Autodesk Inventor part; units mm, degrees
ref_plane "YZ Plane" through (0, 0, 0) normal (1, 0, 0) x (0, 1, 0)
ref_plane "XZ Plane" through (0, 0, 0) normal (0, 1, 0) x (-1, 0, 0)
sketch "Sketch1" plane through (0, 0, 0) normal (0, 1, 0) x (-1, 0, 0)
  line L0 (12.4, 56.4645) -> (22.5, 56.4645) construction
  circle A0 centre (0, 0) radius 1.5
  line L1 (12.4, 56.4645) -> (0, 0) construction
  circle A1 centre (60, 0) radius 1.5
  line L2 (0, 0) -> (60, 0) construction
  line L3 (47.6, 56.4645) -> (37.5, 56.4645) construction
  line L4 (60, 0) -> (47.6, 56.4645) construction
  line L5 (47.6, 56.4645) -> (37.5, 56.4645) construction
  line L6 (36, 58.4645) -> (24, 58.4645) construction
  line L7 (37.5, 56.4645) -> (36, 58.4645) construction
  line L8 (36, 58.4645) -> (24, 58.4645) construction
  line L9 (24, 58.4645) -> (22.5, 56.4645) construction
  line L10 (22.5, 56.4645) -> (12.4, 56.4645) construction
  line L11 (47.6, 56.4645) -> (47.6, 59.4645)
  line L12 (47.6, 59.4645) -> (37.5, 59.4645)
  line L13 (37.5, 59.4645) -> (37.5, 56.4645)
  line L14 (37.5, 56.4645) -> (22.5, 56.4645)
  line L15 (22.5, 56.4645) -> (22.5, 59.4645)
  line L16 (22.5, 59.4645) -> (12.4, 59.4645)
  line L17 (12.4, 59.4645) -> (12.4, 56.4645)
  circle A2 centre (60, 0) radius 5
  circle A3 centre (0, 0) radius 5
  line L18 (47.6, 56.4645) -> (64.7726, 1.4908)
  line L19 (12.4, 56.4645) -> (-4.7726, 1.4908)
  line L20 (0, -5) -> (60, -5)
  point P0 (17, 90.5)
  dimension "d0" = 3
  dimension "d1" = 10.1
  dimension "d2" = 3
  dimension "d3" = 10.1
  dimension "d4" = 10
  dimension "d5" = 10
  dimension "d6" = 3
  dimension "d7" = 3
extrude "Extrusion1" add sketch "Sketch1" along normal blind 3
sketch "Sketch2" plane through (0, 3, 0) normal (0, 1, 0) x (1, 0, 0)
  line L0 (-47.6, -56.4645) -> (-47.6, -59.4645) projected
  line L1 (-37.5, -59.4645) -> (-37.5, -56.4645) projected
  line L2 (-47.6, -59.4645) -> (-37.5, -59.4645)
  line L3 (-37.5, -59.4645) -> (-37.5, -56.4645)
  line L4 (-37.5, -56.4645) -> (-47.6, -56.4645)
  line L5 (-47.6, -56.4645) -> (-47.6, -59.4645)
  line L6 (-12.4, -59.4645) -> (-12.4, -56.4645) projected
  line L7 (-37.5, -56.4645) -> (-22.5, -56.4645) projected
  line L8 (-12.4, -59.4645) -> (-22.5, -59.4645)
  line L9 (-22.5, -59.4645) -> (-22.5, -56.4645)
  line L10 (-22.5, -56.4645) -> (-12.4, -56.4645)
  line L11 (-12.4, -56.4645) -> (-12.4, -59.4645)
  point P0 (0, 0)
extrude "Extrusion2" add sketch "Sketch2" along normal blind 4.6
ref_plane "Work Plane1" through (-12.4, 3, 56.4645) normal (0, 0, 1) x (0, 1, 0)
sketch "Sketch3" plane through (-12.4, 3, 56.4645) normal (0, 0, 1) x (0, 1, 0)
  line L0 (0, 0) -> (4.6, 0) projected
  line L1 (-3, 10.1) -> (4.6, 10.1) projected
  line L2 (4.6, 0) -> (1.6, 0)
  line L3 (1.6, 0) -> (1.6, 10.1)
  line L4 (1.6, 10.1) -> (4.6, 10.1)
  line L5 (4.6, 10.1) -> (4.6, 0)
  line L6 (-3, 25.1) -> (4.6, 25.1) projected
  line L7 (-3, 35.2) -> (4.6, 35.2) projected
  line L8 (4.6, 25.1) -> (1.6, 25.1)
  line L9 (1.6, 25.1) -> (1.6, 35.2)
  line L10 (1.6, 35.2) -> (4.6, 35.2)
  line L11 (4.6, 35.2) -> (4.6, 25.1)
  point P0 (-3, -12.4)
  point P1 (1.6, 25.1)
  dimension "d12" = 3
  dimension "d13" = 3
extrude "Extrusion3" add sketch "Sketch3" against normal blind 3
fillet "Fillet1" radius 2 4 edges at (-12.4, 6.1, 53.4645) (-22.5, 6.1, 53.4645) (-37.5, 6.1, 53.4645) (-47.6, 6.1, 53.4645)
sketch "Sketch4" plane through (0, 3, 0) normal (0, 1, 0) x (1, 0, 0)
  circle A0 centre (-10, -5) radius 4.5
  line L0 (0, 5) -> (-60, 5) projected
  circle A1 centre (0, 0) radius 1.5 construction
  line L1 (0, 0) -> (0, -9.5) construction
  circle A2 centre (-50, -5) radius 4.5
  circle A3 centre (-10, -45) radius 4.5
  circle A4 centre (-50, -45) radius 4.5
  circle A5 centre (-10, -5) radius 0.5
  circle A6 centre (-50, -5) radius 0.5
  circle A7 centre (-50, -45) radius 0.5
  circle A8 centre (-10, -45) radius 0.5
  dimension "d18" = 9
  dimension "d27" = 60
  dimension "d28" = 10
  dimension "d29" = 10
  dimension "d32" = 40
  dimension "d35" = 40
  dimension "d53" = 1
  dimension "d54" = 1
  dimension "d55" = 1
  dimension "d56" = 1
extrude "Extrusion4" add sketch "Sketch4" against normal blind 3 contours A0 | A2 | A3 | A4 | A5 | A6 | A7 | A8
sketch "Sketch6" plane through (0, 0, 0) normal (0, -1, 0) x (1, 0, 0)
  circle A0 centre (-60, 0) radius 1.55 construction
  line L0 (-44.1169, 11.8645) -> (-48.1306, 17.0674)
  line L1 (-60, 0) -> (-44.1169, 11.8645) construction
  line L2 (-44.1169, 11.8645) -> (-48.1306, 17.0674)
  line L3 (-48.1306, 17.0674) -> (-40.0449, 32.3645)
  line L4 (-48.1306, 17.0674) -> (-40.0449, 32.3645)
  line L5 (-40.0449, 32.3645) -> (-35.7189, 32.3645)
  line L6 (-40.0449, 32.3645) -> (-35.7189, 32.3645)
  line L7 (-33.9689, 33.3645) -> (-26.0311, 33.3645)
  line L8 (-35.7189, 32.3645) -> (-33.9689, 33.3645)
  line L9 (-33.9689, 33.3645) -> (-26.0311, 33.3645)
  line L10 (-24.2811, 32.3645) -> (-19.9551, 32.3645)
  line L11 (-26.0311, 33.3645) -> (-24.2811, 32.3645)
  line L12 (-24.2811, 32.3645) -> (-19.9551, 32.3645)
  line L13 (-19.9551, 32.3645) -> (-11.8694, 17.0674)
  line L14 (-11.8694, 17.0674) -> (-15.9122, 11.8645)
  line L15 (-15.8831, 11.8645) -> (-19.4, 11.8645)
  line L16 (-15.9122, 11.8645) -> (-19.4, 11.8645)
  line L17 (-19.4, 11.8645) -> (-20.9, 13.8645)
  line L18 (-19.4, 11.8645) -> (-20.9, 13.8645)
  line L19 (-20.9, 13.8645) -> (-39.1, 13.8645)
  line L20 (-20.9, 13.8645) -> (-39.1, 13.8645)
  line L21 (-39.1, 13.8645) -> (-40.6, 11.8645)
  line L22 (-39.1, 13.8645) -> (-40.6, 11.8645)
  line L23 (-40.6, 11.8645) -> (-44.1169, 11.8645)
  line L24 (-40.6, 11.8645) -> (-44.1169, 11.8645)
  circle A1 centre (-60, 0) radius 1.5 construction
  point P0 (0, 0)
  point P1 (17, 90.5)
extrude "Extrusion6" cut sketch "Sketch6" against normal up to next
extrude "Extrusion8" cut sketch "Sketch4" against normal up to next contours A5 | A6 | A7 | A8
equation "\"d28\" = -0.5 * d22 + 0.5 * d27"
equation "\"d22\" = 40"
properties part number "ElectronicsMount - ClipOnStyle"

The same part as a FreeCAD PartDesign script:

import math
import FreeCAD as App
import Part
import Sketcher

V = App.Vector
Q = App.Units.Quantity


def edges_at(feature, points):
    """Names of the edges that pass closest to the given points."""
    edges = feature.Shape.Edges
    near = lambda p: min(range(len(edges)), key=lambda i: edges[i].distToShape(Part.Vertex(*p))[0])
    return sorted({f"Edge{near(p) + 1}" for p in points})

doc = App.newDocument("Part")
body = doc.addObject("PartDesign::Body", "Body")

# Sketch on XZ plane
sketch1 = body.newObject("Sketcher::SketchObject", "Sketch")
sketch1.AttachmentSupport = (doc.getObject("XZ_Plane"), [""])
sketch1.MapMode = "FlatFace"
sketch1.addGeometry([
    Part.LineSegment(V(-64.8, 1.5, 0), V(-47.6, 56.5, 0)),  # 0
    Part.LineSegment(V(-47.6, 56.5, 0), V(-47.6, 59.5, 0)),  # 1
    Part.LineSegment(V(-47.6, 59.5, 0), V(-37.5, 59.5, 0)),  # 2
    Part.LineSegment(V(-37.5, 59.5, 0), V(-37.5, 56.5, 0)),  # 3
    Part.LineSegment(V(-37.5, 56.5, 0), V(-22.5, 56.5, 0)),  # 4
    Part.LineSegment(V(-22.5, 56.5, 0), V(-22.5, 59.5, 0)),  # 5
    Part.LineSegment(V(-22.5, 59.5, 0), V(-12.4, 59.5, 0)),  # 6
    Part.LineSegment(V(-12.4, 59.5, 0), V(-12.4, 56.5, 0)),  # 7
    Part.LineSegment(V(-12.4, 56.5, 0), V(4.8, 1.5, 0)),  # 8
    Part.ArcOfCircle(Part.Circle(V(0, 0, 0), V(0, 0, 1), 5), math.radians(-90), math.radians(17)),  # 9
    Part.LineSegment(V(0, -5, 0), V(-60, -5, 0)),  # 10
    Part.ArcOfCircle(Part.Circle(V(-60, 0, 0), V(0, 0, 1), 5), math.radians(163), math.radians(270)),  # 11
    Part.Circle(V(-60, 0, 0), V(0, 0, 1), 1.5),  # 12
    Part.Circle(V(0, 0, 0), V(0, 0, 1), 1.5),  # 13
], False)
sketch1.addConstraint([
    Sketcher.Constraint("Coincident", 0, 2, 1, 1),
    Sketcher.Constraint("Coincident", 1, 2, 2, 1),
    Sketcher.Constraint("Coincident", 2, 2, 3, 1),
    Sketcher.Constraint("Coincident", 3, 2, 4, 1),
    Sketcher.Constraint("Coincident", 4, 2, 5, 1),
    Sketcher.Constraint("Coincident", 5, 2, 6, 1),
    Sketcher.Constraint("Coincident", 6, 2, 7, 1),
    Sketcher.Constraint("Coincident", 7, 2, 8, 1),
    Sketcher.Constraint("Tangent", 8, 2, 9, 2),
    Sketcher.Constraint("Tangent", 9, 1, 10, 1),
    Sketcher.Constraint("Tangent", 10, 2, 11, 2),
    Sketcher.Constraint("Tangent", 11, 1, 0, 1),
    Sketcher.Constraint("Vertical", 1),
    Sketcher.Constraint("Horizontal", 2),
    Sketcher.Constraint("Vertical", 3),
    Sketcher.Constraint("Horizontal", 4),
    Sketcher.Constraint("Vertical", 5),
    Sketcher.Constraint("Horizontal", 6),
    Sketcher.Constraint("Vertical", 7),
    Sketcher.Constraint("Horizontal", 10),
    Sketcher.Constraint("Coincident", 9, 3, -1, 1),
    Sketcher.Constraint("Coincident", 13, 3, -1, 1),
    Sketcher.Constraint("Coincident", 12, 3, 11, 3),
    Sketcher.Constraint("Equal", 9, 11),
    Sketcher.Constraint("Equal", 12, 13),
    Sketcher.Constraint("Horizontal", 0, 2, 3, 2),
    Sketcher.Constraint("Horizontal", 2, 2, 5, 2),
    Sketcher.Constraint("Horizontal", 4, 2, 7, 2),
    Sketcher.Constraint("Horizontal", 8, 2, 11, 1),
    Sketcher.Constraint("Equal", 2, 6),
    Sketcher.Constraint("Diameter", 12, 3.0),
    Sketcher.Constraint("Radius", 9, 5.0),
    Sketcher.Constraint("DistanceY", 1, 1, 1, 2, 3.0),
    Sketcher.Constraint("DistanceX", 2, 1, 2, 2, 10.1),
    Sketcher.Constraint("DistanceX", 4, 1, 4, 2, 15.0),
    Sketcher.Constraint("DistanceX", 10, 2, 10, 1, 60.0),
    Sketcher.Constraint("Distance", 0, 57.5935),
])
pad1 = body.newObject("PartDesign::Pad", "Pad")
pad1.Profile = sketch1
pad1.Length = 3
pad1.Reversed = True

# Sketch on XZ plane
sketch2 = body.newObject("Sketcher::SketchObject", "Sketch001")
sketch2.AttachmentSupport = (doc.getObject("XZ_Plane"), [""])
sketch2.MapMode = "FlatFace"
sketch2.AttachmentOffset = App.Placement(V(0, 0, -3), App.Rotation())
sketch2.addGeometry([
    Part.LineSegment(V(-37.5, 56.5, 0), V(-47.6, 56.5, 0)),  # 0
    Part.LineSegment(V(-47.6, 56.5, 0), V(-47.6, 59.5, 0)),  # 1
    Part.LineSegment(V(-47.6, 59.5, 0), V(-37.5, 59.5, 0)),  # 2
    Part.LineSegment(V(-37.5, 59.5, 0), V(-37.5, 56.5, 0)),  # 3
    Part.LineSegment(V(-12.4, 56.5, 0), V(-22.5, 56.5, 0)),  # 4
    Part.LineSegment(V(-22.5, 56.5, 0), V(-22.5, 59.5, 0)),  # 5
    Part.LineSegment(V(-22.5, 59.5, 0), V(-12.4, 59.5, 0)),  # 6
    Part.LineSegment(V(-12.4, 59.5, 0), V(-12.4, 56.5, 0)),  # 7
], False)
sketch2.addConstraint([
    Sketcher.Constraint("Coincident", 0, 2, 1, 1),
    Sketcher.Constraint("Coincident", 1, 2, 2, 1),
    Sketcher.Constraint("Coincident", 2, 2, 3, 1),
    Sketcher.Constraint("Coincident", 3, 2, 0, 1),
    Sketcher.Constraint("Coincident", 4, 2, 5, 1),
    Sketcher.Constraint("Coincident", 5, 2, 6, 1),
    Sketcher.Constraint("Coincident", 6, 2, 7, 1),
    Sketcher.Constraint("Coincident", 7, 2, 4, 1),
    Sketcher.Constraint("Horizontal", 0),
    Sketcher.Constraint("Vertical", 1),
    Sketcher.Constraint("Horizontal", 2),
    Sketcher.Constraint("Vertical", 3),
    Sketcher.Constraint("Horizontal", 4),
    Sketcher.Constraint("Vertical", 5),
    Sketcher.Constraint("Horizontal", 6),
    Sketcher.Constraint("Vertical", 7),
    Sketcher.Constraint("Horizontal", 3, 2, 4, 2),
    Sketcher.Constraint("Horizontal", 2, 2, 5, 2),
    Sketcher.Constraint("Equal", 2, 4),
    Sketcher.Constraint("DistanceY", 1, 1, 1, 2, 3.0),
    Sketcher.Constraint("DistanceX", 0, 2, 0, 1, 10.1),
    Sketcher.Constraint("DistanceX", 3, 2, 4, 2, 15.0),
    Sketcher.Constraint("DistanceX", 0, 2, -1, 1, 47.6),
    Sketcher.Constraint("DistanceY", -1, 1, 0, 2, 56.4645),
])
pad2 = body.newObject("PartDesign::Pad", "Pad001")
pad2.Profile = sketch2
pad2.Length = 4.6
pad2.Reversed = True

# Sketch on XY plane
sketch3 = body.newObject("Sketcher::SketchObject", "Sketch002")
sketch3.AttachmentSupport = (doc.getObject("XY_Plane"), [""])
sketch3.MapMode = "FlatFace"
sketch3.AttachmentOffset = App.Placement(V(0, 0, 56.4645), App.Rotation())
sketch3.addGeometry([
    Part.LineSegment(V(-22.5, 4.6, 0), V(-12.4, 4.6, 0)),  # 0
    Part.LineSegment(V(-12.4, 4.6, 0), V(-12.4, 7.6, 0)),  # 1
    Part.LineSegment(V(-12.4, 7.6, 0), V(-22.5, 7.6, 0)),  # 2
    Part.LineSegment(V(-22.5, 7.6, 0), V(-22.5, 4.6, 0)),  # 3
    Part.LineSegment(V(-47.6, 4.6, 0), V(-37.5, 4.6, 0)),  # 4
    Part.LineSegment(V(-37.5, 4.6, 0), V(-37.5, 7.6, 0)),  # 5
    Part.LineSegment(V(-37.5, 7.6, 0), V(-47.6, 7.6, 0)),  # 6
    Part.LineSegment(V(-47.6, 7.6, 0), V(-47.6, 4.6, 0)),  # 7
], False)
sketch3.addConstraint([
    Sketcher.Constraint("Coincident", 0, 2, 1, 1),
    Sketcher.Constraint("Coincident", 1, 2, 2, 1),
    Sketcher.Constraint("Coincident", 2, 2, 3, 1),
    Sketcher.Constraint("Coincident", 3, 2, 0, 1),
    Sketcher.Constraint("Coincident", 4, 2, 5, 1),
    Sketcher.Constraint("Coincident", 5, 2, 6, 1),
    Sketcher.Constraint("Coincident", 6, 2, 7, 1),
    Sketcher.Constraint("Coincident", 7, 2, 4, 1),
    Sketcher.Constraint("Horizontal", 0),
    Sketcher.Constraint("Vertical", 1),
    Sketcher.Constraint("Horizontal", 2),
    Sketcher.Constraint("Vertical", 3),
    Sketcher.Constraint("Horizontal", 4),
    Sketcher.Constraint("Vertical", 5),
    Sketcher.Constraint("Horizontal", 6),
    Sketcher.Constraint("Vertical", 7),
    Sketcher.Constraint("Horizontal", 3, 2, 4, 2),
    Sketcher.Constraint("Horizontal", 2, 2, 5, 2),
    Sketcher.Constraint("Equal", 2, 4),
    Sketcher.Constraint("DistanceY", 1, 1, 1, 2, 3.0),
    Sketcher.Constraint("DistanceX", 0, 1, 0, 2, 10.1),
    Sketcher.Constraint("DistanceX", 4, 2, 3, 2, 15.0),
    Sketcher.Constraint("DistanceX", 0, 2, -1, 1, 12.4),
    Sketcher.Constraint("DistanceY", -1, 1, 0, 2, 4.6),
])
pad3 = body.newObject("PartDesign::Pad", "Pad002")
pad3.Profile = sketch3
pad3.Length = 3
pad3.Reversed = True
doc.recompute()

fillet = body.newObject("PartDesign::Fillet", "Fillet")
fillet.Base = (pad3, edges_at(pad3, [
    (-12.4, 6.1, 53.465),
    (-22.5, 6.1, 53.465),
    (-37.5, 6.1, 53.465),
    (-47.6, 6.1, 53.465),
]))
fillet.Radius = 2

# Sketch on XZ plane
sketch4 = body.newObject("Sketcher::SketchObject", "Sketch003")
sketch4.AttachmentSupport = (doc.getObject("XZ_Plane"), [""])
sketch4.MapMode = "FlatFace"
sketch4.AttachmentOffset = App.Placement(V(0, 0, -3), App.Rotation())
sketch4.addGeometry([
    Part.Circle(V(-10, 5, 0), V(0, 0, 1), 4.5),
    Part.Circle(V(-50, 5, 0), V(0, 0, 1), 4.5),
    Part.Circle(V(-10, 45, 0), V(0, 0, 1), 4.5),
    Part.Circle(V(-50, 45, 0), V(0, 0, 1), 4.5),
], False)
sketch4.addConstraint([
    Sketcher.Constraint("Equal", 0, 1),
    Sketcher.Constraint("Equal", 1, 2),
    Sketcher.Constraint("Equal", 2, 3),
    Sketcher.Constraint("Horizontal", 0, 3, 1, 3),
    Sketcher.Constraint("Horizontal", 2, 3, 3, 3),
    Sketcher.Constraint("Vertical", 0, 3, 2, 3),
    Sketcher.Constraint("Vertical", 1, 3, 3, 3),
    Sketcher.Constraint("Diameter", 0, 9.0),
    Sketcher.Constraint("DistanceX", 0, 3, -1, 1, 10.0),
    Sketcher.Constraint("DistanceX", 1, 3, 0, 3, 40.0),
    Sketcher.Constraint("DistanceY", 0, 3, 2, 3, 40.0),
    Sketcher.Constraint("DistanceY", -1, 1, 0, 3, 5.0),
])
pad4 = body.newObject("PartDesign::Pad", "Pad003")
pad4.Profile = sketch4
pad4.Length = 3

# Sketch on XZ plane
sketch5 = body.newObject("Sketcher::SketchObject", "Sketch004")
sketch5.AttachmentSupport = (doc.getObject("XZ_Plane"), [""])
sketch5.MapMode = "FlatFace"
sketch5.addGeometry([
    Part.LineSegment(V(-48.1, 17.1, 0), V(-44.1, 11.9, 0)),  # 0
    Part.LineSegment(V(-44.1, 11.9, 0), V(-40.6, 11.9, 0)),  # 1
    Part.LineSegment(V(-40.6, 11.9, 0), V(-39.1, 13.9, 0)),  # 2
    Part.LineSegment(V(-39.1, 13.9, 0), V(-20.9, 13.9, 0)),  # 3
    Part.LineSegment(V(-20.9, 13.9, 0), V(-19.4, 11.9, 0)),  # 4
    Part.LineSegment(V(-19.4, 11.9, 0), V(-15.9, 11.9, 0)),  # 5
    Part.LineSegment(V(-15.9, 11.9, 0), V(-11.9, 17.1, 0)),  # 6
    Part.LineSegment(V(-11.9, 17.1, 0), V(-20, 32.4, 0)),  # 7
    Part.LineSegment(V(-20, 32.4, 0), V(-24.3, 32.4, 0)),  # 8
    Part.LineSegment(V(-24.3, 32.4, 0), V(-26, 33.4, 0)),  # 9
    Part.LineSegment(V(-26, 33.4, 0), V(-34, 33.4, 0)),  # 10
    Part.LineSegment(V(-34, 33.4, 0), V(-35.7, 32.4, 0)),  # 11
    Part.LineSegment(V(-35.7, 32.4, 0), V(-40, 32.4, 0)),  # 12
    Part.LineSegment(V(-40, 32.4, 0), V(-48.1, 17.1, 0)),  # 13
], False)
sketch5.addConstraint([
    Sketcher.Constraint("Coincident", 0, 2, 1, 1),
    Sketcher.Constraint("Coincident", 1, 2, 2, 1),
    Sketcher.Constraint("Coincident", 2, 2, 3, 1),
    Sketcher.Constraint("Coincident", 3, 2, 4, 1),
    Sketcher.Constraint("Coincident", 4, 2, 5, 1),
    Sketcher.Constraint("Coincident", 5, 2, 6, 1),
    Sketcher.Constraint("Coincident", 6, 2, 7, 1),
    Sketcher.Constraint("Coincident", 7, 2, 8, 1),
    Sketcher.Constraint("Coincident", 8, 2, 9, 1),
    Sketcher.Constraint("Coincident", 9, 2, 10, 1),
    Sketcher.Constraint("Coincident", 10, 2, 11, 1),
    Sketcher.Constraint("Coincident", 11, 2, 12, 1),
    Sketcher.Constraint("Coincident", 12, 2, 13, 1),
    Sketcher.Constraint("Coincident", 13, 2, 0, 1),
    Sketcher.Constraint("Horizontal", 1),
    Sketcher.Constraint("Horizontal", 3),
    Sketcher.Constraint("Horizontal", 5),
    Sketcher.Constraint("Horizontal", 8),
    Sketcher.Constraint("Horizontal", 10),
    Sketcher.Constraint("Horizontal", 12),
    Sketcher.Constraint("Horizontal", 1, 2, 4, 2),
    Sketcher.Constraint("Horizontal", 8, 2, 11, 2),
    Sketcher.Constraint("Horizontal", 6, 2, 13, 2),
    Sketcher.Constraint("Equal", 8, 12),
    Sketcher.Constraint("Equal", 2, 4),
    Sketcher.Constraint("Equal", 9, 11),
    Sketcher.Constraint("Equal", 7, 13),
    Sketcher.Constraint("DistanceX", 3, 1, 3, 2, 18.2),
    Sketcher.Constraint("DistanceY", 1, 2, 2, 2, 2.0),
    Sketcher.Constraint("DistanceY", 8, 2, 9, 2, 1.0),
    Sketcher.Constraint("Distance", 2, 2.5),
    Sketcher.Constraint("DistanceX", 1, 2, -1, 1, 40.6),
    Sketcher.Constraint("Angle", 7, Q("117.86 deg")),
    Sketcher.Constraint("DistanceY", 3, 2, 7, 2, 18.5),
    Sketcher.Constraint("DistanceX", 1, 1, 1, 2, 3.517),
    Sketcher.Constraint("DistanceX", 8, 2, 8, 1, 4.326),
    Sketcher.Constraint("DistanceX", 9, 2, 8, 2, 1.75),
    Sketcher.Constraint("Distance", 6, 6.589),
    Sketcher.Constraint("DistanceX", 5, 1, 5, 2, 3.4878),
    Sketcher.Constraint("DistanceX", 10, 2, 10, 1, 7.9378),
    Sketcher.Constraint("DistanceX", 7, 2, -1, 1, 19.955),
    Sketcher.Constraint("DistanceY", -1, 1, 0, 2, 11.8645),
])
pocket1 = body.newObject("PartDesign::Pocket", "Pocket")
pocket1.Profile = sketch5
pocket1.Type = "UpToFirst"

# Sketch on XZ plane
sketch6 = body.newObject("Sketcher::SketchObject", "Sketch005")
sketch6.AttachmentSupport = (doc.getObject("XZ_Plane"), [""])
sketch6.MapMode = "FlatFace"
sketch6.AttachmentOffset = App.Placement(V(0, 0, -3), App.Rotation())
sketch6.addGeometry([
    Part.Circle(V(-10, 5, 0), V(0, 0, 1), 0.5),
    Part.Circle(V(-50, 5, 0), V(0, 0, 1), 0.5),
    Part.Circle(V(-50, 45, 0), V(0, 0, 1), 0.5),
    Part.Circle(V(-10, 45, 0), V(0, 0, 1), 0.5),
], False)
sketch6.addConstraint([
    Sketcher.Constraint("Equal", 0, 1),
    Sketcher.Constraint("Equal", 1, 2),
    Sketcher.Constraint("Equal", 2, 3),
    Sketcher.Constraint("Horizontal", 0, 3, 1, 3),
    Sketcher.Constraint("Horizontal", 2, 3, 3, 3),
    Sketcher.Constraint("Vertical", 1, 3, 2, 3),
    Sketcher.Constraint("Vertical", 0, 3, 3, 3),
    Sketcher.Constraint("Diameter", 0, 1.0),
    Sketcher.Constraint("DistanceX", 0, 3, -1, 1, 10.0),
    Sketcher.Constraint("DistanceX", 1, 3, 0, 3, 40.0),
    Sketcher.Constraint("DistanceY", 1, 3, 2, 3, 40.0),
    Sketcher.Constraint("DistanceY", -1, 1, 0, 3, 5.0),
])
pocket2 = body.newObject("PartDesign::Pocket", "Pocket001")
pocket2.Profile = sketch6
pocket2.Length = 3
pocket2.Reversed = True

doc.recompute()
